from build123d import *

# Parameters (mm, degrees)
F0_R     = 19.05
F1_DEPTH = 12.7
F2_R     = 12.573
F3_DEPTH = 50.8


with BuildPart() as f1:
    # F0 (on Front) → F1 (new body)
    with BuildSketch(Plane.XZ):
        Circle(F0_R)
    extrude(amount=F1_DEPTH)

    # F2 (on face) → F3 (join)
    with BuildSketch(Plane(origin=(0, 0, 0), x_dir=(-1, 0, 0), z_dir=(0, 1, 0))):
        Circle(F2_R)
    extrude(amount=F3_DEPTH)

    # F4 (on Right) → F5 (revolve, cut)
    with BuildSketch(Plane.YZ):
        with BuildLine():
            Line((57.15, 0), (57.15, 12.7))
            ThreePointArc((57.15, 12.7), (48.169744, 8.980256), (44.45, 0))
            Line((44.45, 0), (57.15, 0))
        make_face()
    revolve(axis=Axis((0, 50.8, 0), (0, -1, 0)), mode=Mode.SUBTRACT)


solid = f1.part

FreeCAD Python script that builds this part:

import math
import FreeCAD as App
import Part
import Sketcher
Q = App.Units.Quantity

doc = App.newDocument("Part")
params = doc.addObject("Spreadsheet::Sheet", "Params")
for row, (alias, value) in enumerate([
    ("sketch1_diameter", "1.5 in"),
    ("pad1_length", "0.5 in"),
    ("sketch2_diameter", "0.99 in"),
    ("pad2_length", "2 in"),
    ("sketch3_radius", "0.5 in"),
    ("groove_angle", "360 deg"),
], start=1):
    params.set(f"A{row}", alias)
    params.set(f"B{row}", "=" + value)
    params.setAlias(f"B{row}", alias)

body = doc.addObject("PartDesign::Body", "Body")

# Sketch on XZ plane
sketch1 = body.newObject("Sketcher::SketchObject", "Sketch")
sketch1.AttachmentSupport = (doc.getObject("XZ_Plane"), [""])
sketch1.MapMode = "FlatFace"
sketch1.addGeometry(Part.Circle(App.Vector(0, 0, 0), App.Vector(0, 0, 1), 19), False)
sketch1.addConstraint(Sketcher.Constraint("Coincident", 0, 3, -1, 1))
sketch1.addConstraint(Sketcher.Constraint("Diameter", 0, Q("1.5 in")))
sketch1.setExpression("Constraints[1]", "Params.sketch1_diameter")
pad1 = body.newObject("PartDesign::Pad", "Pad")
pad1.Profile = sketch1
pad1.setExpression("Length", "Params.pad1_length")

# Sketch on XZ plane
sketch2 = body.newObject("Sketcher::SketchObject", "Sketch001")
sketch2.AttachmentSupport = (doc.getObject("XZ_Plane"), [""])
sketch2.MapMode = "FlatFace"
sketch2.addGeometry(Part.Circle(App.Vector(0, 0, 0), App.Vector(0, 0, 1), 13), False)
sketch2.addConstraint(Sketcher.Constraint("Coincident", 0, 3, -1, 1))
sketch2.addConstraint(Sketcher.Constraint("Diameter", 0, Q("0.99 in")))
sketch2.setExpression("Constraints[1]", "Params.sketch2_diameter")
pad2 = body.newObject("PartDesign::Pad", "Pad001")
pad2.Profile = sketch2
pad2.setExpression("Length", "Params.pad2_length")
pad2.Reversed = True

# Sketch on YZ plane
sketch3 = body.newObject("Sketcher::SketchObject", "Sketch002")
sketch3.AttachmentSupport = (doc.getObject("YZ_Plane"), [""])
sketch3.MapMode = "FlatFace"
sketch3.addGeometry(Part.LineSegment(App.Vector(57, 0, 0), App.Vector(57, 13, 0)), False)
sketch3.addGeometry(Part.ArcOfCircle(Part.Circle(App.Vector(57, 0, 0), App.Vector(0, 0, 1), 13), math.radians(90), math.radians(180)), False)
sketch3.addGeometry(Part.LineSegment(App.Vector(44, 0, 0), App.Vector(57, 0, 0)), False)
sketch3.addConstraint(Sketcher.Constraint("Coincident", 0, 2, 1, 1))
sketch3.addConstraint(Sketcher.Constraint("Coincident", 1, 2, 2, 1))
sketch3.addConstraint(Sketcher.Constraint("Coincident", 2, 2, 0, 1))
sketch3.addConstraint(Sketcher.Constraint("Vertical", 0))
sketch3.addConstraint(Sketcher.Constraint("Horizontal", 2))
sketch3.addConstraint(Sketcher.Constraint("Coincident", 2, 2, 1, 3))
sketch3.addConstraint(Sketcher.Constraint("PointOnObject", 1, 3, -1))
sketch3.addConstraint(Sketcher.Constraint("Radius", 1, Q("0.5 in")))
sketch3.addConstraint(Sketcher.Constraint("DistanceX", -1, 1, 1, 3, Q("2.25 in")))
sketch3.setExpression("Constraints[7]", "Params.sketch3_radius")
groove = body.newObject("PartDesign::Groove", "Groove")
groove.Profile = sketch3
groove.ReferenceAxis = (sketch3, ["H_Axis"])
groove.setExpression("Angle", "Params.groove_angle")

doc.recompute()
